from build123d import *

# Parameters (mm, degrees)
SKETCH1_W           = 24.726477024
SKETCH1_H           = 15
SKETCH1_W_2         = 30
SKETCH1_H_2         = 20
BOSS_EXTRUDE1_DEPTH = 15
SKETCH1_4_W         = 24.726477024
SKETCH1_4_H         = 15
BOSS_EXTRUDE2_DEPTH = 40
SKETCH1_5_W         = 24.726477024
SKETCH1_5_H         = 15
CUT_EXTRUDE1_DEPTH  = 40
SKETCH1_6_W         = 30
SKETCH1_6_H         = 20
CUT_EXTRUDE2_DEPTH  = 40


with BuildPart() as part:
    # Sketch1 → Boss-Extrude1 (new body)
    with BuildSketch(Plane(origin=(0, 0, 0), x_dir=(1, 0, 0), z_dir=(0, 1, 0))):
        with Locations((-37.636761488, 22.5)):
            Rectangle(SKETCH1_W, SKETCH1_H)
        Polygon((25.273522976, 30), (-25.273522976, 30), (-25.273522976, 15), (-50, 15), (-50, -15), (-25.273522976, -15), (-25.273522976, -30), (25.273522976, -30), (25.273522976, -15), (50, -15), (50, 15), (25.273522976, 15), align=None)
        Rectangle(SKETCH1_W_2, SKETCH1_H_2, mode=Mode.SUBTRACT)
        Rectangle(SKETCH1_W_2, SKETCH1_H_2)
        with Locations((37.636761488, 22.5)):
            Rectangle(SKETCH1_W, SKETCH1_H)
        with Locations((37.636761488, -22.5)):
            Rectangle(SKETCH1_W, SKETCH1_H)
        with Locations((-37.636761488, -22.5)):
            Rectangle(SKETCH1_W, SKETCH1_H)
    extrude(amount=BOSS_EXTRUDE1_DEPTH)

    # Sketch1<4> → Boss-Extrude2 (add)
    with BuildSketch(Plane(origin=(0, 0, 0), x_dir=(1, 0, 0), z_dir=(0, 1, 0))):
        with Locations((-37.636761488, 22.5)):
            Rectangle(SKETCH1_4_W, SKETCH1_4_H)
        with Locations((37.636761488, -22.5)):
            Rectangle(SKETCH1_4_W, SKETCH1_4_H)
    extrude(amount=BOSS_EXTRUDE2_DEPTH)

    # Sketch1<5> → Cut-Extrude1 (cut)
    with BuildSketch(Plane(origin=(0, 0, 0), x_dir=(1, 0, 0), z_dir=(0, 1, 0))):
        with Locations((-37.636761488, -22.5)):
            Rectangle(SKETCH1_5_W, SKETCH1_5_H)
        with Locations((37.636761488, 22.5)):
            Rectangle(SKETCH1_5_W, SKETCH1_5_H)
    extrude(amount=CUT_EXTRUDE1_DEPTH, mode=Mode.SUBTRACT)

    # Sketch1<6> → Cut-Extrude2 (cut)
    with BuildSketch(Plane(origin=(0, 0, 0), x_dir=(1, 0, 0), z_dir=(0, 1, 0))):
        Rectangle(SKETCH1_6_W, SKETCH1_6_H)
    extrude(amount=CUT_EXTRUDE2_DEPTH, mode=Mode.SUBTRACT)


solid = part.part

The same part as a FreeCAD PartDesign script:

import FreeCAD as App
import Part
import Sketcher


def add_polygon(sketch, points):
    """Adds a closed chain of lines whose ends are joined by coincident constraints."""
    first, n = sketch.GeometryCount, len(points)
    for a, b in zip(points, points[1:] + points[:1]):
        sketch.addGeometry(Part.LineSegment(App.Vector(*a, 0), App.Vector(*b, 0)), False)
    for i in range(n):
        sketch.addConstraint(Sketcher.Constraint("Coincident", first + i, 2, first + (i + 1) % n, 1))

doc = App.newDocument("Part")
body = doc.addObject("PartDesign::Body", "Body")

sketch1 = body.newObject("Sketcher::SketchObject", "Sketch")
sketch1.AttachmentSupport = (doc.getObject("XZ_Plane"), [""])
sketch1.MapMode = "FlatFace"
add_polygon(sketch1, [(-50, -30), (-50, 30), (50, 30), (50, -30)])
sketch1.addConstraint(Sketcher.Constraint("Vertical", 0))
sketch1.addConstraint(Sketcher.Constraint("Horizontal", 1))
sketch1.addConstraint(Sketcher.Constraint("Vertical", 2))
sketch1.addConstraint(Sketcher.Constraint("Horizontal", 3))
sketch1.addConstraint(Sketcher.Constraint("Symmetric", 0, 2, 2, 2, -1, 1))
sketch1.addConstraint(Sketcher.Constraint("DistanceX", 1, 1, 1, 2, 100.0))
sketch1.addConstraint(Sketcher.Constraint("DistanceY", 0, 1, 0, 2, 60.0))
pad1 = body.newObject("PartDesign::Pad", "Pad")
pad1.Profile = sketch1
pad1.Length = 15
pad1.Reversed = True

sketch2 = body.newObject("Sketcher::SketchObject", "Sketch001")
sketch2.AttachmentSupport = (doc.getObject("XZ_Plane"), [""])
sketch2.MapMode = "FlatFace"
add_polygon(sketch2, [(-50, -30), (-50, -15), (-25.273523, -15), (-25.273523, -30)])
add_polygon(sketch2, [(25.273523, 15), (25.273523, 30), (50, 30), (50, 15)])
sketch2.addConstraint(Sketcher.Constraint("Vertical", 0))
sketch2.addConstraint(Sketcher.Constraint("Horizontal", 1))
sketch2.addConstraint(Sketcher.Constraint("Vertical", 2))
sketch2.addConstraint(Sketcher.Constraint("Horizontal", 3))
sketch2.addConstraint(Sketcher.Constraint("Vertical", 4))
sketch2.addConstraint(Sketcher.Constraint("Horizontal", 5))
sketch2.addConstraint(Sketcher.Constraint("Vertical", 6))
sketch2.addConstraint(Sketcher.Constraint("Horizontal", 7))
sketch2.addConstraint(Sketcher.Constraint("Symmetric", 2, 2, 4, 2, -1, 1))
sketch2.addConstraint(Sketcher.Constraint("Symmetric", 0, 2, 6, 2, -1, 1))
sketch2.addConstraint(Sketcher.Constraint("DistanceY", 0, 1, 0, 2, 15.0))
sketch2.addConstraint(Sketcher.Constraint("DistanceX", 0, 2, -1, 1, 50.0))
sketch2.addConstraint(Sketcher.Constraint("DistanceY", 0, 2, -1, 1, 15.0))
sketch2.addConstraint(Sketcher.Constraint("DistanceX", 1, 1, 1, 2, 24.726477))
pad2 = body.newObject("PartDesign::Pad", "Pad001")
pad2.Profile = sketch2
pad2.Length = 40
pad2.Reversed = True

sketch3 = body.newObject("Sketcher::SketchObject", "Sketch002")
sketch3.AttachmentSupport = (doc.getObject("XZ_Plane"), [""])
sketch3.MapMode = "FlatFace"
add_polygon(sketch3, [(-50, 15), (-50, 30), (-25.273523, 30), (-25.273523, 15)])
add_polygon(sketch3, [(25.273523, -30), (25.273523, -15), (50, -15), (50, -30)])
sketch3.addConstraint(Sketcher.Constraint("Vertical", 0))
sketch3.addConstraint(Sketcher.Constraint("Horizontal", 1))
sketch3.addConstraint(Sketcher.Constraint("Vertical", 2))
sketch3.addConstraint(Sketcher.Constraint("Horizontal", 3))
sketch3.addConstraint(Sketcher.Constraint("Vertical", 4))
sketch3.addConstraint(Sketcher.Constraint("Horizontal", 5))
sketch3.addConstraint(Sketcher.Constraint("Vertical", 6))
sketch3.addConstraint(Sketcher.Constraint("Horizontal", 7))
sketch3.addConstraint(Sketcher.Constraint("Symmetric", 2, 2, 4, 2, -1, 1))
sketch3.addConstraint(Sketcher.Constraint("Symmetric", 0, 2, 6, 2, -1, 1))
sketch3.addConstraint(Sketcher.Constraint("DistanceY", 0, 1, 0, 2, 15.0))
sketch3.addConstraint(Sketcher.Constraint("DistanceX", 0, 2, -1, 1, 50.0))
sketch3.addConstraint(Sketcher.Constraint("DistanceY", -1, 1, 0, 2, 30.0))
sketch3.addConstraint(Sketcher.Constraint("DistanceX", 1, 1, 1, 2, 24.726477))
pocket1 = body.newObject("PartDesign::Pocket", "Pocket")
pocket1.Profile = sketch3
pocket1.Length = 40

sketch4 = body.newObject("Sketcher::SketchObject", "Sketch003")
sketch4.AttachmentSupport = (doc.getObject("XZ_Plane"), [""])
sketch4.MapMode = "FlatFace"
add_polygon(sketch4, [(-15, -10), (-15, 10), (15, 10), (15, -10)])
sketch4.addConstraint(Sketcher.Constraint("Vertical", 0))
sketch4.addConstraint(Sketcher.Constraint("Horizontal", 1))
sketch4.addConstraint(Sketcher.Constraint("Vertical", 2))
sketch4.addConstraint(Sketcher.Constraint("Horizontal", 3))
sketch4.addConstraint(Sketcher.Constraint("Symmetric", 0, 2, 2, 2, -1, 1))
sketch4.addConstraint(Sketcher.Constraint("DistanceX", 1, 1, 1, 2, 30.0))
sketch4.addConstraint(Sketcher.Constraint("DistanceY", 0, 1, 0, 2, 20.0))
pocket2 = body.newObject("PartDesign::Pocket", "Pocket001")
pocket2.Profile = sketch4
pocket2.Length = 40

doc.recompute()
